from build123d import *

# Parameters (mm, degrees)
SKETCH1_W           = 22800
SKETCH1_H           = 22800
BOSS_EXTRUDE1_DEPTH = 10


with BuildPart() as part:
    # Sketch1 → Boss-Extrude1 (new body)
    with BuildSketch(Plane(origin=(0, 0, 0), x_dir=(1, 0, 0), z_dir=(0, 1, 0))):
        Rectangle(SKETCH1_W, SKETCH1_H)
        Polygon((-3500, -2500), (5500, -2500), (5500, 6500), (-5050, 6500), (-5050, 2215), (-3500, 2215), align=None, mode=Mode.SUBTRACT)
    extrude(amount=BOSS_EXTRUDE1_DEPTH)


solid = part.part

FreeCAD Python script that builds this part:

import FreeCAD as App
import Part
import Sketcher

V = App.Vector

doc = App.newDocument("Part")
body = doc.addObject("PartDesign::Body", "Body")

sketch1 = doc.addObject("Sketcher::SketchObject", "Sketch")
body.addObject(sketch1)
sketch1.AttachmentSupport = (doc.XZ_Plane, [""])
sketch1.MapMode = "FlatFace"
sketch1.addGeometry([
    Part.LineSegment(V(-11400, -11400, 0), V(-11400, 11400, 0)),
    Part.LineSegment(V(-11400, 11400, 0), V(11400, 11400, 0)),
    Part.LineSegment(V(11400, 11400, 0), V(11400, -11400, 0)),
    Part.LineSegment(V(11400, -11400, 0), V(-11400, -11400, 0)),
    Part.LineSegment(V(5500, 2500, 0), V(-3500, 2500, 0)),
    Part.LineSegment(V(-3500, 2500, 0), V(-3500, -2215, 0)),
    Part.LineSegment(V(-3500, -2215, 0), V(-5050, -2215, 0)),
    Part.LineSegment(V(-5050, -2215, 0), V(-5050, -6500, 0)),
    Part.LineSegment(V(-5050, -6500, 0), V(5500, -6500, 0)),
    Part.LineSegment(V(5500, -6500, 0), V(5500, 2500, 0)),
], False)
sketch1.addConstraint([
    Sketcher.Constraint("Coincident", 0, 2, 1, 1),
    Sketcher.Constraint("Coincident", 1, 2, 2, 1),
    Sketcher.Constraint("Coincident", 2, 2, 3, 1),
    Sketcher.Constraint("Coincident", 3, 2, 0, 1),
    Sketcher.Constraint("Coincident", 4, 2, 5, 1),
    Sketcher.Constraint("Coincident", 5, 2, 6, 1),
    Sketcher.Constraint("Coincident", 6, 2, 7, 1),
    Sketcher.Constraint("Coincident", 7, 2, 8, 1),
    Sketcher.Constraint("Coincident", 8, 2, 9, 1),
    Sketcher.Constraint("Coincident", 9, 2, 4, 1),
    Sketcher.Constraint("Vertical", 0),
    Sketcher.Constraint("Horizontal", 1),
    Sketcher.Constraint("Vertical", 2),
    Sketcher.Constraint("Horizontal", 3),
    Sketcher.Constraint("Horizontal", 4),
    Sketcher.Constraint("Vertical", 5),
    Sketcher.Constraint("Horizontal", 6),
    Sketcher.Constraint("Vertical", 7),
    Sketcher.Constraint("Horizontal", 8),
    Sketcher.Constraint("Vertical", 9),
    Sketcher.Constraint("Symmetric", 0, 2, 2, 2, -1, 1),
    Sketcher.Constraint("Equal", 3, 0),
    Sketcher.Constraint("Equal", 4, 9),
    Sketcher.Constraint("DistanceX", 1, 1, 1, 2, 22800.0),
    Sketcher.Constraint("DistanceX", 4, 2, 4, 1, 9000.0),
    Sketcher.Constraint("DistanceX", 6, 2, 6, 1, 1550.0),
    Sketcher.Constraint("DistanceY", 5, 2, 5, 1, 4715.0),
    Sketcher.Constraint("DistanceX", 4, 2, -1, 1, 3500.0),
    Sketcher.Constraint("DistanceY", -1, 1, 4, 2, 2500.0),
])
pad1 = doc.addObject("PartDesign::Pad", "Pad")
body.addObject(pad1)
pad1.Profile = sketch1
pad1.Length = 10
pad1.Reversed = True

doc.recompute()
